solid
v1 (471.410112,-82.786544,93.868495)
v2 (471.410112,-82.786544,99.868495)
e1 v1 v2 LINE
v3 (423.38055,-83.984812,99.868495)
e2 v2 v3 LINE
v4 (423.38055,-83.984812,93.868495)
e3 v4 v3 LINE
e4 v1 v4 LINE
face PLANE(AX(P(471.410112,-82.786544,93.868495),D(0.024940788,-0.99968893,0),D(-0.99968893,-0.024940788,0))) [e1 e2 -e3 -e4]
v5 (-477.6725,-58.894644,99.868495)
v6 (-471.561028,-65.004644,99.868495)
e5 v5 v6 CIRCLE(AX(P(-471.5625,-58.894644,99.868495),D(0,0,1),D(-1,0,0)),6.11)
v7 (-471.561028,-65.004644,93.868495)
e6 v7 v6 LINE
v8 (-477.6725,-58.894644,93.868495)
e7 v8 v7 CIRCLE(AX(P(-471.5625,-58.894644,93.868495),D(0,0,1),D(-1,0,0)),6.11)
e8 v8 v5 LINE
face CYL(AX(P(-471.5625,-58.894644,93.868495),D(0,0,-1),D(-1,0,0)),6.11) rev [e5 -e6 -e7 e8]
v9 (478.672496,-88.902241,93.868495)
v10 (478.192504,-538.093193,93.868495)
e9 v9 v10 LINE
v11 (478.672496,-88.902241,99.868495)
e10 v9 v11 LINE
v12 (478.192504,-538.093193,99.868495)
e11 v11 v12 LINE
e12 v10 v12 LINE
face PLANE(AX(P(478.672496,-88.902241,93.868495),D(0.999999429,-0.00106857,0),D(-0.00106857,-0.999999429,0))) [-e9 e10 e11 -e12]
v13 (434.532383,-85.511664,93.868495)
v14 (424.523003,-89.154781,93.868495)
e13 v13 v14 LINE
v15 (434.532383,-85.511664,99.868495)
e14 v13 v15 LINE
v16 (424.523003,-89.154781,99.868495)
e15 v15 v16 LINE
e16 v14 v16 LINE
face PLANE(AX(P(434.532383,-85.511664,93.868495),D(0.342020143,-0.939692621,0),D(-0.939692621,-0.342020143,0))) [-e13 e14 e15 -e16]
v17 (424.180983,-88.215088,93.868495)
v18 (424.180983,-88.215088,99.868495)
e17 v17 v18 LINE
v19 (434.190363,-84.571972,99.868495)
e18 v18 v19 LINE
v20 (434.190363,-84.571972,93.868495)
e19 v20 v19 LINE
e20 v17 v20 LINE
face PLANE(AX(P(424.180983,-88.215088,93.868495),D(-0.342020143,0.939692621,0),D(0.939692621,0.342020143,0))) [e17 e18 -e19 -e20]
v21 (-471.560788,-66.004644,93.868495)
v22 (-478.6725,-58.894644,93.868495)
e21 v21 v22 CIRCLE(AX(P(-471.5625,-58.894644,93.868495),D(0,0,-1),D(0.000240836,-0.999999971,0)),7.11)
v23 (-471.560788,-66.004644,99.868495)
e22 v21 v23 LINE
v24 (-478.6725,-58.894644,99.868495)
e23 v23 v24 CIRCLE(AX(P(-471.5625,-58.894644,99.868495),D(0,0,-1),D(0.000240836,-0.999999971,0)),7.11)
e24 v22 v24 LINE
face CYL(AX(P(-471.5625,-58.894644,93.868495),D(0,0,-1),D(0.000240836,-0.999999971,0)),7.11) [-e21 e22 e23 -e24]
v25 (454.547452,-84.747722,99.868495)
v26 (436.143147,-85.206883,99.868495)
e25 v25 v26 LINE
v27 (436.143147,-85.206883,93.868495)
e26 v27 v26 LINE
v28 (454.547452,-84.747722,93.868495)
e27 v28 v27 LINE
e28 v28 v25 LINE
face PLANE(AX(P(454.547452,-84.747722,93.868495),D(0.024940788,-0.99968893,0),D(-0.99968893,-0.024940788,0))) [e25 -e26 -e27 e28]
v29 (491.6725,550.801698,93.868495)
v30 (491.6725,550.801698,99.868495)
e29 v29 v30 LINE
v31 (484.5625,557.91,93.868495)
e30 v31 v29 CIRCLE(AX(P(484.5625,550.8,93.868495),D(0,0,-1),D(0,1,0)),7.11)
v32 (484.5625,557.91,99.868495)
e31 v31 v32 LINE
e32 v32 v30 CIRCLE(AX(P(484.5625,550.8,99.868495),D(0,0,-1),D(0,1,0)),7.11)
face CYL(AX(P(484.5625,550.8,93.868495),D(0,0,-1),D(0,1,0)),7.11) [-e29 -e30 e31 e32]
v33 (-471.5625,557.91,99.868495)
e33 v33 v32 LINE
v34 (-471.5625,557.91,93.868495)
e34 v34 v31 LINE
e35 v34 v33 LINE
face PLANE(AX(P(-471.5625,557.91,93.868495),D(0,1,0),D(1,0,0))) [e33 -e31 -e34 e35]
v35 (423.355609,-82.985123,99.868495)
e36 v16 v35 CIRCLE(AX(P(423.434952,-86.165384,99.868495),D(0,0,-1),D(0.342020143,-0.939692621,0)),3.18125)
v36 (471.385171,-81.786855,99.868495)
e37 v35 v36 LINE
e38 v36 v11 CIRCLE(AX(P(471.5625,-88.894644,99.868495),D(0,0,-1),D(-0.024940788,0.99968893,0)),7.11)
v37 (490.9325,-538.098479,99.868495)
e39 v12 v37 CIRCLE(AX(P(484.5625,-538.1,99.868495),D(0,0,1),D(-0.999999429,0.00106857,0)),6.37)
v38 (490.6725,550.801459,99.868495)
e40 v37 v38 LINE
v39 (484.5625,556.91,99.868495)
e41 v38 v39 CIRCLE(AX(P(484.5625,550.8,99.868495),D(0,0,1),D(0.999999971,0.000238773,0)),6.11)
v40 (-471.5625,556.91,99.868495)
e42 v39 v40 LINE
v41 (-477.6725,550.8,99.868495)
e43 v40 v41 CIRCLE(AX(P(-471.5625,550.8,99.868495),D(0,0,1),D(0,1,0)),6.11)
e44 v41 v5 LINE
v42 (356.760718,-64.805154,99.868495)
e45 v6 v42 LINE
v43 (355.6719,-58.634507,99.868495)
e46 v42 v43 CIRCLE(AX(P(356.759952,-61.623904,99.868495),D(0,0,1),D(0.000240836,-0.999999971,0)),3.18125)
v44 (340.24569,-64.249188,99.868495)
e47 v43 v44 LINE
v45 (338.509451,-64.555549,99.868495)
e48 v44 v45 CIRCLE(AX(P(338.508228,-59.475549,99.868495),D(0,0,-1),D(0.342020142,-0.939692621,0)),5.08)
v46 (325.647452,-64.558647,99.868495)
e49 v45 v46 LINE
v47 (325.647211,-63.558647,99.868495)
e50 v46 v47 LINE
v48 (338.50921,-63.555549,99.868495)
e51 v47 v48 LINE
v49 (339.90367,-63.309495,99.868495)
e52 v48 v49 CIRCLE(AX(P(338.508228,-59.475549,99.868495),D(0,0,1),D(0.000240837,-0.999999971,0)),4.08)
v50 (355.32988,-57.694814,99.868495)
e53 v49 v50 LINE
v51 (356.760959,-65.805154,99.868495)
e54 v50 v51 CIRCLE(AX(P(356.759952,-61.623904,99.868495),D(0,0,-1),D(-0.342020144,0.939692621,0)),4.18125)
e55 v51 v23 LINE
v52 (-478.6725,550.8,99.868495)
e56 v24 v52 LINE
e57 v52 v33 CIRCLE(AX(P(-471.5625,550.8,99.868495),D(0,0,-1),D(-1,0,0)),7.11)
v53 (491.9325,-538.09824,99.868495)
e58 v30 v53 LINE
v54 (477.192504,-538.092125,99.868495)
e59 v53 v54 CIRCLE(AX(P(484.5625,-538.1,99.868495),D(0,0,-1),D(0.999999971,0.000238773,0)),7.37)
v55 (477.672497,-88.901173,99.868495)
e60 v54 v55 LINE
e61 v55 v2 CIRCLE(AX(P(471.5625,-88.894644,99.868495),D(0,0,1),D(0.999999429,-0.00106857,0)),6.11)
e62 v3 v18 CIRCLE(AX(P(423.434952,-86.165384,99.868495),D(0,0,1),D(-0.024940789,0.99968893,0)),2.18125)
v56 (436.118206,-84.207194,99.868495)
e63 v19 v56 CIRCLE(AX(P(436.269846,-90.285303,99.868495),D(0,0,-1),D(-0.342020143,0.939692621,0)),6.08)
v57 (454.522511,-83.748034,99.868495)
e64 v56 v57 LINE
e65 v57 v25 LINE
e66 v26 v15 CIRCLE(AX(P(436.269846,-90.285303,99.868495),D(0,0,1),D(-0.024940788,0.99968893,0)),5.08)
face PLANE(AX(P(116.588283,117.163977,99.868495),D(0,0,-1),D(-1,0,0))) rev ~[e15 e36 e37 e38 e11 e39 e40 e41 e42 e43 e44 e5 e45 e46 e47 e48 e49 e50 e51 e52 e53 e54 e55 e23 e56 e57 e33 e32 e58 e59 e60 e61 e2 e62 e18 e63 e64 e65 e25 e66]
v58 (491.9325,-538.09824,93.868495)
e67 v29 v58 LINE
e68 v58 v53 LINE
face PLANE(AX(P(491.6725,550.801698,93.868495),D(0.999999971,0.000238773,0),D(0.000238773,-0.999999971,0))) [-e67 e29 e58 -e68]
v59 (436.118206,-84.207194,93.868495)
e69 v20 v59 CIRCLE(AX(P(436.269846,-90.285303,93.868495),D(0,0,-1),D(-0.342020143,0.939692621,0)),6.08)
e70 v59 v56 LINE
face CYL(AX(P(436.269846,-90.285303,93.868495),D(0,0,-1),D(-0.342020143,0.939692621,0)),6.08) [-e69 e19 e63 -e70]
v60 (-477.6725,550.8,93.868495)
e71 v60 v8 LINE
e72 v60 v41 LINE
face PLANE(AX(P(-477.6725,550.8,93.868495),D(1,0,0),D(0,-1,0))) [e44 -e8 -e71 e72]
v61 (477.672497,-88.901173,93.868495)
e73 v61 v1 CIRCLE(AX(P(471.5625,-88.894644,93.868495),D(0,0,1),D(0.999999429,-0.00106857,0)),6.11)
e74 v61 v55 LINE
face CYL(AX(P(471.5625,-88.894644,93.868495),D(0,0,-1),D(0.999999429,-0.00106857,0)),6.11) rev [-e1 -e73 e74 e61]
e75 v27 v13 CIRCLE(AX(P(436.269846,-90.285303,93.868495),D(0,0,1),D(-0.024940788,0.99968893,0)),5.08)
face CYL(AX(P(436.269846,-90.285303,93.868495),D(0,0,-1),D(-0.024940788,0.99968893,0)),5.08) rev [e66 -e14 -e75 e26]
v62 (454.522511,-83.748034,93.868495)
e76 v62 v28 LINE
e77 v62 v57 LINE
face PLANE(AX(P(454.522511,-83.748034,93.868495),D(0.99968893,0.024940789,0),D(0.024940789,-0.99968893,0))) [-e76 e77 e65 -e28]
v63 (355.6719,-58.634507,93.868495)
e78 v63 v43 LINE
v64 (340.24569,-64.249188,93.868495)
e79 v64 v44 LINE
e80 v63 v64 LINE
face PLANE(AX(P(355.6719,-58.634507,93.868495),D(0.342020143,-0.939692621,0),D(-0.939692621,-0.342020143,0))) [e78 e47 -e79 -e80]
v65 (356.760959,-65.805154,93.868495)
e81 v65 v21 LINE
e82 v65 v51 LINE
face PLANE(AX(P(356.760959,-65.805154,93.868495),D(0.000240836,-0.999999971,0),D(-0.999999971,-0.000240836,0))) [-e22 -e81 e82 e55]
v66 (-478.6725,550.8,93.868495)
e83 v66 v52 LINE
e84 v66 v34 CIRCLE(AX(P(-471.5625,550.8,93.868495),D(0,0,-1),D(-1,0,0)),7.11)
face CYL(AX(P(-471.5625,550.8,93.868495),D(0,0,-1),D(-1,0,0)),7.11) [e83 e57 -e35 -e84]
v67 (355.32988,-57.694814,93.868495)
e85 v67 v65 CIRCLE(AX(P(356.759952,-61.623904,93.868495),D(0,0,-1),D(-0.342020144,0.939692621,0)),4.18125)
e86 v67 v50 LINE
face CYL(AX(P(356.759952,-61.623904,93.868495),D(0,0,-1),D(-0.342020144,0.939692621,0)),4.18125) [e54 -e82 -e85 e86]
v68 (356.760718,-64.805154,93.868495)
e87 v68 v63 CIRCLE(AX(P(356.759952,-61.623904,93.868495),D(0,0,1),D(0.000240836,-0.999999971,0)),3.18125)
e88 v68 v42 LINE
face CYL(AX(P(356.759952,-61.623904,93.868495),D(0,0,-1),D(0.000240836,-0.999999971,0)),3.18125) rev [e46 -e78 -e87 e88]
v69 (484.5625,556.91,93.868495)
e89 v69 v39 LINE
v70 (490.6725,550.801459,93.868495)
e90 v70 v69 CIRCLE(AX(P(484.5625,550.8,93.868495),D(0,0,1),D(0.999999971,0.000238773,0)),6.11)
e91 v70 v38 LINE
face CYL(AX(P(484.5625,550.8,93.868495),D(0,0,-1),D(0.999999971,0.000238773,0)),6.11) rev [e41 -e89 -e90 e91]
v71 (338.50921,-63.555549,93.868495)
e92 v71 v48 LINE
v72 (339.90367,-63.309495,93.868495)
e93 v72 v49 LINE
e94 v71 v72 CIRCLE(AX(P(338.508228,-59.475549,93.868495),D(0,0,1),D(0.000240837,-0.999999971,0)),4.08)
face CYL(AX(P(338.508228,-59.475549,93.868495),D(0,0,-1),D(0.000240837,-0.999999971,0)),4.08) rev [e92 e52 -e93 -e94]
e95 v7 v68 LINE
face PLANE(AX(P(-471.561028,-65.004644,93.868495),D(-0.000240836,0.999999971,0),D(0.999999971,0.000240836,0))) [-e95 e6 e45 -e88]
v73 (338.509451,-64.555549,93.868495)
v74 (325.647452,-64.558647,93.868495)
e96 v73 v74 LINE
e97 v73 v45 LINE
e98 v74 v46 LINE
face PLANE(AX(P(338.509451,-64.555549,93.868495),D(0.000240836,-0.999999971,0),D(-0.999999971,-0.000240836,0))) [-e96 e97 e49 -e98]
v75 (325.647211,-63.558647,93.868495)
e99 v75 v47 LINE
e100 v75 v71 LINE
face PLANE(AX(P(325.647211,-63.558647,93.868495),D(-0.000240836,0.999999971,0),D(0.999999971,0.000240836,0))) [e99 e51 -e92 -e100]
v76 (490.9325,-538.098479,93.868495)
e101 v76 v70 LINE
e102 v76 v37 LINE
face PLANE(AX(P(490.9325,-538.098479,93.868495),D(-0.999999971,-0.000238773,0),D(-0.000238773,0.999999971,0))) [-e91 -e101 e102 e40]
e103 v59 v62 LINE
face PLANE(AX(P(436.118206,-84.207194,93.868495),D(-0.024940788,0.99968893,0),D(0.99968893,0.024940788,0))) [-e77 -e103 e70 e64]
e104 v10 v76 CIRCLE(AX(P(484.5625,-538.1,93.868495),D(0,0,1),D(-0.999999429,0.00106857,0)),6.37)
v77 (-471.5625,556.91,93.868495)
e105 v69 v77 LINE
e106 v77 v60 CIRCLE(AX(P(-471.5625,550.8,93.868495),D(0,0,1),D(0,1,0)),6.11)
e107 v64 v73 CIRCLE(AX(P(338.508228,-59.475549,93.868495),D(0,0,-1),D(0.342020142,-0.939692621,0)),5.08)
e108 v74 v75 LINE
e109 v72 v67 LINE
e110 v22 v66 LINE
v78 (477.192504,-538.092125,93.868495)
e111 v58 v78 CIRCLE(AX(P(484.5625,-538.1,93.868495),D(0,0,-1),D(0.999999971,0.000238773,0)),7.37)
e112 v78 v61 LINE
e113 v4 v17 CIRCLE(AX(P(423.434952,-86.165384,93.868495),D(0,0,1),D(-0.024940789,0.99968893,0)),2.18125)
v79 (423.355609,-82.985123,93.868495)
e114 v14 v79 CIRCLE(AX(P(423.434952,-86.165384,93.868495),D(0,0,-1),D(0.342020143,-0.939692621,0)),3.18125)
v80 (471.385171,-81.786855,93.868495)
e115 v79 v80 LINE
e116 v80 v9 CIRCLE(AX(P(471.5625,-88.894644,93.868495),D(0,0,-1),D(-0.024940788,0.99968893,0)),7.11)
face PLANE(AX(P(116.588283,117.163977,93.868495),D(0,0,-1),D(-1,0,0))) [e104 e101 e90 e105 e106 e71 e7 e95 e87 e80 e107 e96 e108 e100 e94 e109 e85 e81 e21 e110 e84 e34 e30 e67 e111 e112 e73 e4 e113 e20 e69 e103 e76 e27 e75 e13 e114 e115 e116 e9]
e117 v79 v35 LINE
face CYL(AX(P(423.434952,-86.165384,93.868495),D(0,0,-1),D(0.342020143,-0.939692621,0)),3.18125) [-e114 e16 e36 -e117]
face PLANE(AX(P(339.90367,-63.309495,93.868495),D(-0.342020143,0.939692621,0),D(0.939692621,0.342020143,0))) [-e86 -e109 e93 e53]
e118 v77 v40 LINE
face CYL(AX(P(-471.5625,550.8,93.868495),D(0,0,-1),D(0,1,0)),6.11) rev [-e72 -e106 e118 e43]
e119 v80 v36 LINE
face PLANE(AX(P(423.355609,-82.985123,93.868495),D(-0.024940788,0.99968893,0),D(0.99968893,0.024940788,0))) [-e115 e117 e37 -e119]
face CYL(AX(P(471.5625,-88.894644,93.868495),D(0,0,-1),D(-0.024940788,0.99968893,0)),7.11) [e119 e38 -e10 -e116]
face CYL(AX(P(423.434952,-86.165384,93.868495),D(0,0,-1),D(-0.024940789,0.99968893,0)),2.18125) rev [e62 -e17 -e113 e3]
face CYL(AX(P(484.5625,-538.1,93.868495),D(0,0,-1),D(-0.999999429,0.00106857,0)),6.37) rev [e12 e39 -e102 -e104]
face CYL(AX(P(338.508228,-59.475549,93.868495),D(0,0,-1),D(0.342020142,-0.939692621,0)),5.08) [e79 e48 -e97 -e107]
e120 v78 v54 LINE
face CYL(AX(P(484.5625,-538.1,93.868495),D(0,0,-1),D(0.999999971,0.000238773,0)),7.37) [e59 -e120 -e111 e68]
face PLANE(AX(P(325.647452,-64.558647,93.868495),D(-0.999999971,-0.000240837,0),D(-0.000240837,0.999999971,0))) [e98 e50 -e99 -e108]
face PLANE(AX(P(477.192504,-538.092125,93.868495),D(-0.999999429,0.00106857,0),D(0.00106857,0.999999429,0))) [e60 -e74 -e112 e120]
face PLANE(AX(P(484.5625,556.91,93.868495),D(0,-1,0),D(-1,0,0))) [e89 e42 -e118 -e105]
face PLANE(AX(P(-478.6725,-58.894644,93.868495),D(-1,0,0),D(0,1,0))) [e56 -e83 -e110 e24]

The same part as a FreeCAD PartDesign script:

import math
import FreeCAD as App
import Part
import Sketcher
Q = App.Units.Quantity

doc = App.newDocument("Part")
body = doc.addObject("PartDesign::Body", "Body")

sketch1 = doc.addObject("Sketcher::SketchObject", "Sketch")
body.addObject(sketch1)
sketch1.AttachmentSupport = (doc.XY_Plane, [""])
sketch1.MapMode = "FlatFace"
sketch1.AttachmentOffset = App.Placement(App.Vector(0, 0, 93.868495), App.Rotation())
sketch1.addGeometry([
    Part.LineSegment(App.Vector(436.143147, -85.206883, 0), App.Vector(454.547452, -84.747722, 0)),
    Part.LineSegment(App.Vector(454.547452, -84.747722, 0), App.Vector(454.522511, -83.748034, 0)),
    Part.LineSegment(App.Vector(454.522511, -83.748034, 0), App.Vector(436.118206, -84.207194, 0)),
    Part.ArcOfCircle(Part.Circle(App.Vector(436.269846, -90.285303, 0), App.Vector(0, 0, 1), 6.08), math.radians(91.42915), math.radians(110)),
    Part.LineSegment(App.Vector(434.190363, -84.571972, 0), App.Vector(424.180983, -88.215088, 0)),
    Part.ArcOfCircle(Part.Circle(App.Vector(423.434952, -86.165384, 0), App.Vector(0, 0, 1), 2.18125), math.radians(91.42915), math.radians(290)),
    Part.LineSegment(App.Vector(423.38055, -83.984812, 0), App.Vector(471.410112, -82.786544, 0)),
    Part.ArcOfCircle(Part.Circle(App.Vector(471.5625, -88.894644, 0), App.Vector(0, 0, 1), 6.11), math.radians(-0.061225), math.radians(91.42915)),
    Part.LineSegment(App.Vector(477.672497, -88.901173, 0), App.Vector(477.192504, -538.092125, 0)),
    Part.ArcOfCircle(Part.Circle(App.Vector(484.5625, -538.1, 0), App.Vector(0, 0, 1), 7.37), math.radians(179.938775), math.radians(360.013681)),
    Part.LineSegment(App.Vector(491.9325, -538.09824, 0), App.Vector(491.6725, 550.801698, 0)),
    Part.ArcOfCircle(Part.Circle(App.Vector(484.5625, 550.8, 0), App.Vector(0, 0, 1), 7.11), math.radians(0.013681), math.radians(90)),
    Part.LineSegment(App.Vector(484.5625, 557.91, 0), App.Vector(-471.5625, 557.91, 0)),
    Part.ArcOfCircle(Part.Circle(App.Vector(-471.5625, 550.8, 0), App.Vector(0, 0, 1), 7.11), math.radians(90), math.radians(180)),
    Part.LineSegment(App.Vector(-478.6725, 550.8, 0), App.Vector(-478.6725, -58.894644, 0)),
    Part.ArcOfCircle(Part.Circle(App.Vector(-471.5625, -58.894644, 0), App.Vector(0, 0, 1), 7.11), math.radians(180), math.radians(270.013799)),
    Part.LineSegment(App.Vector(-471.560788, -66.004644, 0), App.Vector(356.760959, -65.805154, 0)),
    Part.ArcOfCircle(Part.Circle(App.Vector(356.759952, -61.623904, 0), App.Vector(0, 0, 1), 4.18125), math.radians(-89.986201), math.radians(110)),
    Part.LineSegment(App.Vector(355.32988, -57.694814, 0), App.Vector(339.90367, -63.309495, 0)),
    Part.ArcOfCircle(Part.Circle(App.Vector(338.508228, -59.475549, 0), App.Vector(0, 0, 1), 4.08), math.radians(-89.986201), math.radians(-70)),
    Part.LineSegment(App.Vector(338.50921, -63.555549, 0), App.Vector(325.647211, -63.558647, 0)),
    Part.LineSegment(App.Vector(325.647211, -63.558647, 0), App.Vector(325.647452, -64.558647, 0)),
    Part.LineSegment(App.Vector(325.647452, -64.558647, 0), App.Vector(338.509451, -64.555549, 0)),
    Part.ArcOfCircle(Part.Circle(App.Vector(338.508228, -59.475549, 0), App.Vector(0, 0, 1), 5.08), math.radians(-89.986201), math.radians(-70)),
    Part.LineSegment(App.Vector(340.24569, -64.249188, 0), App.Vector(355.6719, -58.634507, 0)),
    Part.ArcOfCircle(Part.Circle(App.Vector(356.759952, -61.623904, 0), App.Vector(0, 0, 1), 3.18125), math.radians(-89.986201), math.radians(110)),
    Part.LineSegment(App.Vector(356.760718, -64.805154, 0), App.Vector(-471.561028, -65.004644, 0)),
    Part.ArcOfCircle(Part.Circle(App.Vector(-471.5625, -58.894644, 0), App.Vector(0, 0, 1), 6.11), math.radians(180), math.radians(270.013799)),
    Part.LineSegment(App.Vector(-477.6725, -58.894644, 0), App.Vector(-477.6725, 550.8, 0)),
    Part.ArcOfCircle(Part.Circle(App.Vector(-471.5625, 550.8, 0), App.Vector(0, 0, 1), 6.11), math.radians(90), math.radians(180)),
    Part.LineSegment(App.Vector(-471.5625, 556.91, 0), App.Vector(484.5625, 556.91, 0)),
    Part.ArcOfCircle(Part.Circle(App.Vector(484.5625, 550.8, 0), App.Vector(0, 0, 1), 6.11), math.radians(0.013681), math.radians(90)),
    Part.LineSegment(App.Vector(490.6725, 550.801459, 0), App.Vector(490.9325, -538.098479, 0)),
    Part.ArcOfCircle(Part.Circle(App.Vector(484.5625, -538.1, 0), App.Vector(0, 0, 1), 6.37), math.radians(179.938775), math.radians(360.013681)),
    Part.LineSegment(App.Vector(478.192504, -538.093193, 0), App.Vector(478.672496, -88.902241, 0)),
    Part.ArcOfCircle(Part.Circle(App.Vector(471.5625, -88.894644, 0), App.Vector(0, 0, 1), 7.11), math.radians(-0.061225), math.radians(91.42915)),
    Part.LineSegment(App.Vector(471.385171, -81.786855, 0), App.Vector(423.355609, -82.985123, 0)),
    Part.ArcOfCircle(Part.Circle(App.Vector(423.434952, -86.165384, 0), App.Vector(0, 0, 1), 3.18125), math.radians(91.42915), math.radians(290)),
    Part.LineSegment(App.Vector(424.523003, -89.154781, 0), App.Vector(434.532383, -85.511664, 0)),
    Part.ArcOfCircle(Part.Circle(App.Vector(436.269846, -90.285303, 0), App.Vector(0, 0, 1), 5.08), math.radians(91.42915), math.radians(110)),
], False)
sketch1.addConstraint([
    Sketcher.Constraint("Coincident", 0, 2, 1, 1),
    Sketcher.Constraint("Coincident", 1, 2, 2, 1),
    Sketcher.Constraint("Tangent", 2, 2, 3, 1),
    Sketcher.Constraint("Tangent", 3, 2, 4, 1),
    Sketcher.Constraint("Tangent", 4, 2, 5, 2),
    Sketcher.Constraint("Tangent", 5, 1, 6, 1),
    Sketcher.Constraint("Tangent", 6, 2, 7, 2),
    Sketcher.Constraint("Tangent", 7, 1, 8, 1),
    Sketcher.Constraint("Tangent", 8, 2, 9, 1),
    Sketcher.Constraint("Tangent", 9, 2, 10, 1),
    Sketcher.Constraint("Tangent", 10, 2, 11, 1),
    Sketcher.Constraint("Tangent", 11, 2, 12, 1),
    Sketcher.Constraint("Tangent", 12, 2, 13, 1),
    Sketcher.Constraint("Tangent", 13, 2, 14, 1),
    Sketcher.Constraint("Tangent", 14, 2, 15, 1),
    Sketcher.Constraint("Tangent", 15, 2, 16, 1),
    Sketcher.Constraint("Tangent", 16, 2, 17, 1),
    Sketcher.Constraint("Tangent", 17, 2, 18, 1),
    Sketcher.Constraint("Tangent", 18, 2, 19, 2),
    Sketcher.Constraint("Tangent", 19, 1, 20, 1),
    Sketcher.Constraint("Coincident", 20, 2, 21, 1),
    Sketcher.Constraint("Coincident", 21, 2, 22, 1),
    Sketcher.Constraint("Tangent", 22, 2, 23, 1),
    Sketcher.Constraint("Tangent", 23, 2, 24, 1),
    Sketcher.Constraint("Tangent", 24, 2, 25, 2),
    Sketcher.Constraint("Tangent", 25, 1, 26, 1),
    Sketcher.Constraint("Tangent", 26, 2, 27, 2),
    Sketcher.Constraint("Tangent", 27, 1, 28, 1),
    Sketcher.Constraint("Tangent", 28, 2, 29, 2),
    Sketcher.Constraint("Tangent", 29, 1, 30, 1),
    Sketcher.Constraint("Tangent", 30, 2, 31, 2),
    Sketcher.Constraint("Tangent", 31, 1, 32, 1),
    Sketcher.Constraint("Tangent", 32, 2, 33, 2),
    Sketcher.Constraint("Tangent", 33, 1, 34, 1),
    Sketcher.Constraint("Tangent", 34, 2, 35, 1),
    Sketcher.Constraint("Tangent", 35, 2, 36, 1),
    Sketcher.Constraint("Tangent", 36, 2, 37, 1),
    Sketcher.Constraint("Tangent", 37, 2, 38, 1),
    Sketcher.Constraint("Tangent", 38, 2, 39, 2),
    Sketcher.Constraint("Tangent", 39, 1, 0, 1),
    Sketcher.Constraint("Horizontal", 12),
    Sketcher.Constraint("Vertical", 14),
    Sketcher.Constraint("Vertical", 28),
    Sketcher.Constraint("Horizontal", 30),
    Sketcher.Constraint("Coincident", 23, 3, 19, 3),
    Sketcher.Constraint("Coincident", 25, 3, 17, 3),
    Sketcher.Constraint("Coincident", 27, 3, 15, 3),
    Sketcher.Constraint("Coincident", 29, 3, 13, 3),
    Sketcher.Constraint("Coincident", 31, 3, 11, 3),
    Sketcher.Constraint("Coincident", 33, 3, 9, 3),
    Sketcher.Constraint("Coincident", 35, 3, 7, 3),
    Sketcher.Constraint("Coincident", 37, 3, 5, 3),
    Sketcher.Constraint("Coincident", 39, 3, 3, 3),
    Sketcher.Constraint("Equal", 11, 13),
    Sketcher.Constraint("Equal", 13, 15),
    Sketcher.Constraint("Equal", 7, 27),
    Sketcher.Constraint("Equal", 15, 35),
    Sketcher.Constraint("Equal", 25, 37),
    Sketcher.Constraint("Equal", 23, 39),
    Sketcher.Constraint("Perpendicular", 0, 1),
    Sketcher.Constraint("Perpendicular", 1, 2),
    Sketcher.Constraint("Parallel", 2, 6),
    Sketcher.Constraint("Parallel", 4, 18),
    Sketcher.Constraint("Parallel", 16, 20),
    Sketcher.Constraint("Perpendicular", 20, 21),
    Sketcher.Constraint("Perpendicular", 21, 22),
    Sketcher.Constraint("Parallel", 18, 24),
    Sketcher.Constraint("Parallel", 22, 26),
    Sketcher.Constraint("Parallel", 10, 32),
    Sketcher.Constraint("Parallel", 6, 36),
    Sketcher.Constraint("Parallel", 24, 38),
    Sketcher.Constraint("Vertical", 9, 3, 11, 3),
    Sketcher.Constraint("Angle", 4, Q("-160 deg")),
    Sketcher.Constraint("Radius", 3, 6.08),
    Sketcher.Constraint("Radius", 7, 6.11),
    Sketcher.Constraint("Radius", 9, 7.37),
    Sketcher.Constraint("Radius", 11, 7.11),
    Sketcher.Constraint("DistanceX", 7, 3, 9, 3, 13.0),
    Sketcher.Constraint("DistanceY", 7, 3, 15, 3, 30.0),
    Sketcher.Constraint("DistanceY", 9, 3, -1, 1, 538.1),
    Sketcher.Constraint("DistanceY", -1, 1, 11, 3, 550.8),
    Sketcher.Constraint("DistanceX", 12, 2, 12, 1, 956.125),
    Sketcher.Constraint("Radius", 5, 2.18125),
    Sketcher.Constraint("Distance", 20, 12.862),
    Sketcher.Constraint("DistanceX", 17, 3, 5, 3, 66.675),
    Sketcher.Constraint("DistanceX", -1, 1, 7, 3, 471.5625),
    Sketcher.Constraint("DistanceX", -1, 1, 24, 2, 355.6719),
    Sketcher.Constraint("DistanceY", 3, 3, 17, 3, 28.661399),
    Sketcher.Constraint("DistanceX", 5, 3, 0, 2, 31.1125),
    Sketcher.Constraint("DistanceX", 1, 2, 6, 2, 16.887601),
    Sketcher.Constraint("DistanceY", 17, 3, 10, 2, 612.425601),
    Sketcher.Constraint("Distance", 0, 18.410032),
    Sketcher.Constraint("Distance", 18, 16.41623),
])
pad1 = doc.addObject("PartDesign::Pad", "Pad")
body.addObject(pad1)
pad1.Profile = sketch1
pad1.Length = 6

doc.recompute()
